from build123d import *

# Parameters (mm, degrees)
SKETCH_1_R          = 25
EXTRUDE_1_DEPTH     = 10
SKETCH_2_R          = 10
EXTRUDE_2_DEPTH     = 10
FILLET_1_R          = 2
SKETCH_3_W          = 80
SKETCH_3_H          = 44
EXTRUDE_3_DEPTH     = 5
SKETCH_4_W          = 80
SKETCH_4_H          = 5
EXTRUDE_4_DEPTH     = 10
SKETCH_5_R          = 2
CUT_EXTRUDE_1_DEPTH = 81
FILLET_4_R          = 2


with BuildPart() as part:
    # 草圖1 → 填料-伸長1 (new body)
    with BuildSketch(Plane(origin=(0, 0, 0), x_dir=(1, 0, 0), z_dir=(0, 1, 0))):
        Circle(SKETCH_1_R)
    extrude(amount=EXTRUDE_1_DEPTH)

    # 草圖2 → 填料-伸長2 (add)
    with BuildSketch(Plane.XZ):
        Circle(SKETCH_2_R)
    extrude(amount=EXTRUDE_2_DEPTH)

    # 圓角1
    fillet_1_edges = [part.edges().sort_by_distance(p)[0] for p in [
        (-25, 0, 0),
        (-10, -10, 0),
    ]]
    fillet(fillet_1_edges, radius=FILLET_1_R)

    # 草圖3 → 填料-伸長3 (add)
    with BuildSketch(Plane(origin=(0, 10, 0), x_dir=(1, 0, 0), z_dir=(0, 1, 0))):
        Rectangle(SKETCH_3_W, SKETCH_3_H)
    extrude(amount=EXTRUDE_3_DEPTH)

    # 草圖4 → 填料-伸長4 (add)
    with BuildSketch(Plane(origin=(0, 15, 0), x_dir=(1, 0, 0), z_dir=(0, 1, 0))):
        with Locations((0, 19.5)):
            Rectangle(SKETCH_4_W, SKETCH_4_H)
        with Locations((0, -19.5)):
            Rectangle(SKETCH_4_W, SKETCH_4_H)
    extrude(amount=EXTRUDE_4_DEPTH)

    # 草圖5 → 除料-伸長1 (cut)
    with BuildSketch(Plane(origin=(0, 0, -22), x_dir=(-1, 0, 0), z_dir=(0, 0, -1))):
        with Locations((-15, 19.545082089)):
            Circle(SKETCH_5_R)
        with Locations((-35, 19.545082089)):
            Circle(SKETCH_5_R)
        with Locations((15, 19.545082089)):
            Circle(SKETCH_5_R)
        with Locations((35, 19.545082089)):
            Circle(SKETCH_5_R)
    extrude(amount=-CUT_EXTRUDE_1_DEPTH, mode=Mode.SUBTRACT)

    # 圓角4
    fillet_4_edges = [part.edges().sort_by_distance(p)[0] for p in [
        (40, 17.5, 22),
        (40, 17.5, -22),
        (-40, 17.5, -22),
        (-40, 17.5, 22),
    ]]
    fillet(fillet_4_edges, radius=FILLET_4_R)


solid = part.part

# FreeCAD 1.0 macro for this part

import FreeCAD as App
import Part
import Sketcher
Q = App.Units.Quantity


def edges_at(feature, points):
    """Names of the edges that pass closest to the given points."""
    edges = feature.Shape.Edges
    near = lambda p: min(range(len(edges)), key=lambda i: edges[i].distToShape(Part.Vertex(*p))[0])
    return sorted({f"Edge{near(p) + 1}" for p in points})

doc = App.newDocument("Part")
body = doc.addObject("PartDesign::Body", "Body")

# Sketch on XZ plane
sketch1 = doc.addObject("Sketcher::SketchObject", "Sketch")
body.addObject(sketch1)
sketch1.AttachmentSupport = (doc.XZ_Plane, [""])
sketch1.MapMode = "FlatFace"
sketch1.addGeometry(Part.Circle(App.Vector(0, 0, 0), App.Vector(0, 0, 1), 25), False)
sketch1.addConstraint([
    Sketcher.Constraint("Coincident", 0, 3, -1, 1),
    Sketcher.Constraint("Diameter", 0, Q("50 mm")),
])
pad1 = doc.addObject("PartDesign::Pad", "Pad")
body.addObject(pad1)
pad1.Profile = sketch1
pad1.Length = 10
pad1.Reversed = True

# Sketch on XZ plane
sketch2 = doc.addObject("Sketcher::SketchObject", "Sketch001")
body.addObject(sketch2)
sketch2.AttachmentSupport = (doc.XZ_Plane, [""])
sketch2.MapMode = "FlatFace"
sketch2.addGeometry(Part.Circle(App.Vector(0, 0, 0), App.Vector(0, 0, 1), 10), False)
sketch2.addConstraint([
    Sketcher.Constraint("Coincident", 0, 3, -1, 1),
    Sketcher.Constraint("Diameter", 0, Q("20 mm")),
])
pad2 = doc.addObject("PartDesign::Pad", "Pad001")
body.addObject(pad2)
pad2.Profile = sketch2
pad2.Length = 10
doc.recompute()

fillet = doc.addObject("PartDesign::Fillet", "Fillet")
body.addObject(fillet)
fillet.Base = (pad2, edges_at(pad2, [(-25, 0, 0), (-10, -10, 0)]))
fillet.Radius = 2

# Sketch on XZ plane
sketch3 = doc.addObject("Sketcher::SketchObject", "Sketch002")
body.addObject(sketch3)
sketch3.AttachmentSupport = (doc.XZ_Plane, [""])
sketch3.MapMode = "FlatFace"
sketch3.AttachmentOffset = App.Placement(App.Vector(0, 0, -10), App.Rotation())
sketch3.addGeometry([
    Part.LineSegment(App.Vector(-40, -22, 0), App.Vector(-40, 22, 0)),
    Part.LineSegment(App.Vector(-40, 22, 0), App.Vector(40, 22, 0)),
    Part.LineSegment(App.Vector(40, 22, 0), App.Vector(40, -22, 0)),
    Part.LineSegment(App.Vector(40, -22, 0), App.Vector(-40, -22, 0)),
], False)
sketch3.addConstraint([
    Sketcher.Constraint("Coincident", 0, 2, 1, 1),
    Sketcher.Constraint("Coincident", 1, 2, 2, 1),
    Sketcher.Constraint("Coincident", 2, 2, 3, 1),
    Sketcher.Constraint("Coincident", 3, 2, 0, 1),
    Sketcher.Constraint("Vertical", 0),
    Sketcher.Constraint("Horizontal", 1),
    Sketcher.Constraint("Vertical", 2),
    Sketcher.Constraint("Horizontal", 3),
    Sketcher.Constraint("Symmetric", 0, 2, 2, 2, -1, 1),
    Sketcher.Constraint("DistanceX", 1, 1, 1, 2, Q("80 mm")),
    Sketcher.Constraint("DistanceY", 0, 1, 0, 2, Q("44 mm")),
])
pad3 = doc.addObject("PartDesign::Pad", "Pad002")
body.addObject(pad3)
pad3.Profile = sketch3
pad3.Length = 5
pad3.Reversed = True

# Sketch on XZ plane
sketch4 = doc.addObject("Sketcher::SketchObject", "Sketch003")
body.addObject(sketch4)
sketch4.AttachmentSupport = (doc.XZ_Plane, [""])
sketch4.MapMode = "FlatFace"
sketch4.AttachmentOffset = App.Placement(App.Vector(0, 0, -15), App.Rotation())
sketch4.addGeometry([
    Part.LineSegment(App.Vector(-40, -22, 0), App.Vector(-40, -17, 0)),  # 0
    Part.LineSegment(App.Vector(-40, -17, 0), App.Vector(40, -17, 0)),  # 1
    Part.LineSegment(App.Vector(40, -17, 0), App.Vector(40, -22, 0)),  # 2
    Part.LineSegment(App.Vector(40, -22, 0), App.Vector(-40, -22, 0)),  # 3
    Part.LineSegment(App.Vector(-40, 17, 0), App.Vector(-40, 22, 0)),  # 4
    Part.LineSegment(App.Vector(-40, 22, 0), App.Vector(40, 22, 0)),  # 5
    Part.LineSegment(App.Vector(40, 22, 0), App.Vector(40, 17, 0)),  # 6
    Part.LineSegment(App.Vector(40, 17, 0), App.Vector(-40, 17, 0)),  # 7
], False)
sketch4.addConstraint([
    Sketcher.Constraint("Coincident", 0, 2, 1, 1),
    Sketcher.Constraint("Coincident", 1, 2, 2, 1),
    Sketcher.Constraint("Coincident", 2, 2, 3, 1),
    Sketcher.Constraint("Coincident", 3, 2, 0, 1),
    Sketcher.Constraint("Coincident", 4, 2, 5, 1),
    Sketcher.Constraint("Coincident", 5, 2, 6, 1),
    Sketcher.Constraint("Coincident", 6, 2, 7, 1),
    Sketcher.Constraint("Coincident", 7, 2, 4, 1),
    Sketcher.Constraint("Vertical", 0),
    Sketcher.Constraint("Horizontal", 1),
    Sketcher.Constraint("Vertical", 2),
    Sketcher.Constraint("Horizontal", 3),
    Sketcher.Constraint("Vertical", 4),
    Sketcher.Constraint("Horizontal", 5),
    Sketcher.Constraint("Vertical", 6),
    Sketcher.Constraint("Horizontal", 7),
    Sketcher.Constraint("Symmetric", 2, 2, 4, 2, -1, 1),
    Sketcher.Constraint("Symmetric", 0, 2, 6, 2, -1, 1),
    Sketcher.Constraint("Vertical", 3, 2, 4, 2),
    Sketcher.Constraint("DistanceX", 1, 1, 1, 2, Q("80 mm")),
    Sketcher.Constraint("DistanceY", 0, 1, 0, 2, Q("5 mm")),
    Sketcher.Constraint("DistanceY", 0, 2, -1, 1, Q("17 mm")),
])
pad4 = doc.addObject("PartDesign::Pad", "Pad003")
body.addObject(pad4)
pad4.Profile = sketch4
pad4.Length = 10
pad4.Reversed = True

# Sketch on XY plane
sketch5 = doc.addObject("Sketcher::SketchObject", "Sketch004")
body.addObject(sketch5)
sketch5.AttachmentSupport = (doc.XY_Plane, [""])
sketch5.MapMode = "FlatFace"
sketch5.AttachmentOffset = App.Placement(App.Vector(0, 0, -22), App.Rotation())
sketch5.addGeometry([
    Part.Circle(App.Vector(15, 19.545082, 0), App.Vector(0, 0, 1), 2),
    Part.Circle(App.Vector(35, 19.545082, 0), App.Vector(0, 0, 1), 2),
    Part.Circle(App.Vector(-15, 19.545082, 0), App.Vector(0, 0, 1), 2),
    Part.Circle(App.Vector(-35, 19.545082, 0), App.Vector(0, 0, 1), 2),
], False)
sketch5.addConstraint([
    Sketcher.Constraint("Equal", 0, 1),
    Sketcher.Constraint("Equal", 1, 2),
    Sketcher.Constraint("Equal", 2, 3),
    Sketcher.Constraint("Symmetric", 0, 3, 2, 3, -2),
    Sketcher.Constraint("Symmetric", 1, 3, 3, 3, -2),
    Sketcher.Constraint("Horizontal", 0, 3, 1, 3),
    Sketcher.Constraint("Diameter", 0, Q("4 mm")),
    Sketcher.Constraint("DistanceX", -1, 1, 0, 3, Q("15 mm")),
    Sketcher.Constraint("DistanceX", -1, 1, 1, 3, Q("35 mm")),
    Sketcher.Constraint("DistanceY", -1, 1, 0, 3, Q("19.545082 mm")),
])
pocket1 = doc.addObject("PartDesign::Pocket", "Pocket")
body.addObject(pocket1)
pocket1.Profile = sketch5
pocket1.Length = 81
pocket1.Reversed = True
doc.recompute()

fillet2 = doc.addObject("PartDesign::Fillet", "Fillet001")
body.addObject(fillet2)
fillet2.Base = (pocket1, edges_at(pocket1, [
    (40, 17.5, 22),
    (40, 17.5, -22),
    (-40, 17.5, -22),
    (-40, 17.5, 22),
]))
fillet2.Radius = 2

doc.recompute()
